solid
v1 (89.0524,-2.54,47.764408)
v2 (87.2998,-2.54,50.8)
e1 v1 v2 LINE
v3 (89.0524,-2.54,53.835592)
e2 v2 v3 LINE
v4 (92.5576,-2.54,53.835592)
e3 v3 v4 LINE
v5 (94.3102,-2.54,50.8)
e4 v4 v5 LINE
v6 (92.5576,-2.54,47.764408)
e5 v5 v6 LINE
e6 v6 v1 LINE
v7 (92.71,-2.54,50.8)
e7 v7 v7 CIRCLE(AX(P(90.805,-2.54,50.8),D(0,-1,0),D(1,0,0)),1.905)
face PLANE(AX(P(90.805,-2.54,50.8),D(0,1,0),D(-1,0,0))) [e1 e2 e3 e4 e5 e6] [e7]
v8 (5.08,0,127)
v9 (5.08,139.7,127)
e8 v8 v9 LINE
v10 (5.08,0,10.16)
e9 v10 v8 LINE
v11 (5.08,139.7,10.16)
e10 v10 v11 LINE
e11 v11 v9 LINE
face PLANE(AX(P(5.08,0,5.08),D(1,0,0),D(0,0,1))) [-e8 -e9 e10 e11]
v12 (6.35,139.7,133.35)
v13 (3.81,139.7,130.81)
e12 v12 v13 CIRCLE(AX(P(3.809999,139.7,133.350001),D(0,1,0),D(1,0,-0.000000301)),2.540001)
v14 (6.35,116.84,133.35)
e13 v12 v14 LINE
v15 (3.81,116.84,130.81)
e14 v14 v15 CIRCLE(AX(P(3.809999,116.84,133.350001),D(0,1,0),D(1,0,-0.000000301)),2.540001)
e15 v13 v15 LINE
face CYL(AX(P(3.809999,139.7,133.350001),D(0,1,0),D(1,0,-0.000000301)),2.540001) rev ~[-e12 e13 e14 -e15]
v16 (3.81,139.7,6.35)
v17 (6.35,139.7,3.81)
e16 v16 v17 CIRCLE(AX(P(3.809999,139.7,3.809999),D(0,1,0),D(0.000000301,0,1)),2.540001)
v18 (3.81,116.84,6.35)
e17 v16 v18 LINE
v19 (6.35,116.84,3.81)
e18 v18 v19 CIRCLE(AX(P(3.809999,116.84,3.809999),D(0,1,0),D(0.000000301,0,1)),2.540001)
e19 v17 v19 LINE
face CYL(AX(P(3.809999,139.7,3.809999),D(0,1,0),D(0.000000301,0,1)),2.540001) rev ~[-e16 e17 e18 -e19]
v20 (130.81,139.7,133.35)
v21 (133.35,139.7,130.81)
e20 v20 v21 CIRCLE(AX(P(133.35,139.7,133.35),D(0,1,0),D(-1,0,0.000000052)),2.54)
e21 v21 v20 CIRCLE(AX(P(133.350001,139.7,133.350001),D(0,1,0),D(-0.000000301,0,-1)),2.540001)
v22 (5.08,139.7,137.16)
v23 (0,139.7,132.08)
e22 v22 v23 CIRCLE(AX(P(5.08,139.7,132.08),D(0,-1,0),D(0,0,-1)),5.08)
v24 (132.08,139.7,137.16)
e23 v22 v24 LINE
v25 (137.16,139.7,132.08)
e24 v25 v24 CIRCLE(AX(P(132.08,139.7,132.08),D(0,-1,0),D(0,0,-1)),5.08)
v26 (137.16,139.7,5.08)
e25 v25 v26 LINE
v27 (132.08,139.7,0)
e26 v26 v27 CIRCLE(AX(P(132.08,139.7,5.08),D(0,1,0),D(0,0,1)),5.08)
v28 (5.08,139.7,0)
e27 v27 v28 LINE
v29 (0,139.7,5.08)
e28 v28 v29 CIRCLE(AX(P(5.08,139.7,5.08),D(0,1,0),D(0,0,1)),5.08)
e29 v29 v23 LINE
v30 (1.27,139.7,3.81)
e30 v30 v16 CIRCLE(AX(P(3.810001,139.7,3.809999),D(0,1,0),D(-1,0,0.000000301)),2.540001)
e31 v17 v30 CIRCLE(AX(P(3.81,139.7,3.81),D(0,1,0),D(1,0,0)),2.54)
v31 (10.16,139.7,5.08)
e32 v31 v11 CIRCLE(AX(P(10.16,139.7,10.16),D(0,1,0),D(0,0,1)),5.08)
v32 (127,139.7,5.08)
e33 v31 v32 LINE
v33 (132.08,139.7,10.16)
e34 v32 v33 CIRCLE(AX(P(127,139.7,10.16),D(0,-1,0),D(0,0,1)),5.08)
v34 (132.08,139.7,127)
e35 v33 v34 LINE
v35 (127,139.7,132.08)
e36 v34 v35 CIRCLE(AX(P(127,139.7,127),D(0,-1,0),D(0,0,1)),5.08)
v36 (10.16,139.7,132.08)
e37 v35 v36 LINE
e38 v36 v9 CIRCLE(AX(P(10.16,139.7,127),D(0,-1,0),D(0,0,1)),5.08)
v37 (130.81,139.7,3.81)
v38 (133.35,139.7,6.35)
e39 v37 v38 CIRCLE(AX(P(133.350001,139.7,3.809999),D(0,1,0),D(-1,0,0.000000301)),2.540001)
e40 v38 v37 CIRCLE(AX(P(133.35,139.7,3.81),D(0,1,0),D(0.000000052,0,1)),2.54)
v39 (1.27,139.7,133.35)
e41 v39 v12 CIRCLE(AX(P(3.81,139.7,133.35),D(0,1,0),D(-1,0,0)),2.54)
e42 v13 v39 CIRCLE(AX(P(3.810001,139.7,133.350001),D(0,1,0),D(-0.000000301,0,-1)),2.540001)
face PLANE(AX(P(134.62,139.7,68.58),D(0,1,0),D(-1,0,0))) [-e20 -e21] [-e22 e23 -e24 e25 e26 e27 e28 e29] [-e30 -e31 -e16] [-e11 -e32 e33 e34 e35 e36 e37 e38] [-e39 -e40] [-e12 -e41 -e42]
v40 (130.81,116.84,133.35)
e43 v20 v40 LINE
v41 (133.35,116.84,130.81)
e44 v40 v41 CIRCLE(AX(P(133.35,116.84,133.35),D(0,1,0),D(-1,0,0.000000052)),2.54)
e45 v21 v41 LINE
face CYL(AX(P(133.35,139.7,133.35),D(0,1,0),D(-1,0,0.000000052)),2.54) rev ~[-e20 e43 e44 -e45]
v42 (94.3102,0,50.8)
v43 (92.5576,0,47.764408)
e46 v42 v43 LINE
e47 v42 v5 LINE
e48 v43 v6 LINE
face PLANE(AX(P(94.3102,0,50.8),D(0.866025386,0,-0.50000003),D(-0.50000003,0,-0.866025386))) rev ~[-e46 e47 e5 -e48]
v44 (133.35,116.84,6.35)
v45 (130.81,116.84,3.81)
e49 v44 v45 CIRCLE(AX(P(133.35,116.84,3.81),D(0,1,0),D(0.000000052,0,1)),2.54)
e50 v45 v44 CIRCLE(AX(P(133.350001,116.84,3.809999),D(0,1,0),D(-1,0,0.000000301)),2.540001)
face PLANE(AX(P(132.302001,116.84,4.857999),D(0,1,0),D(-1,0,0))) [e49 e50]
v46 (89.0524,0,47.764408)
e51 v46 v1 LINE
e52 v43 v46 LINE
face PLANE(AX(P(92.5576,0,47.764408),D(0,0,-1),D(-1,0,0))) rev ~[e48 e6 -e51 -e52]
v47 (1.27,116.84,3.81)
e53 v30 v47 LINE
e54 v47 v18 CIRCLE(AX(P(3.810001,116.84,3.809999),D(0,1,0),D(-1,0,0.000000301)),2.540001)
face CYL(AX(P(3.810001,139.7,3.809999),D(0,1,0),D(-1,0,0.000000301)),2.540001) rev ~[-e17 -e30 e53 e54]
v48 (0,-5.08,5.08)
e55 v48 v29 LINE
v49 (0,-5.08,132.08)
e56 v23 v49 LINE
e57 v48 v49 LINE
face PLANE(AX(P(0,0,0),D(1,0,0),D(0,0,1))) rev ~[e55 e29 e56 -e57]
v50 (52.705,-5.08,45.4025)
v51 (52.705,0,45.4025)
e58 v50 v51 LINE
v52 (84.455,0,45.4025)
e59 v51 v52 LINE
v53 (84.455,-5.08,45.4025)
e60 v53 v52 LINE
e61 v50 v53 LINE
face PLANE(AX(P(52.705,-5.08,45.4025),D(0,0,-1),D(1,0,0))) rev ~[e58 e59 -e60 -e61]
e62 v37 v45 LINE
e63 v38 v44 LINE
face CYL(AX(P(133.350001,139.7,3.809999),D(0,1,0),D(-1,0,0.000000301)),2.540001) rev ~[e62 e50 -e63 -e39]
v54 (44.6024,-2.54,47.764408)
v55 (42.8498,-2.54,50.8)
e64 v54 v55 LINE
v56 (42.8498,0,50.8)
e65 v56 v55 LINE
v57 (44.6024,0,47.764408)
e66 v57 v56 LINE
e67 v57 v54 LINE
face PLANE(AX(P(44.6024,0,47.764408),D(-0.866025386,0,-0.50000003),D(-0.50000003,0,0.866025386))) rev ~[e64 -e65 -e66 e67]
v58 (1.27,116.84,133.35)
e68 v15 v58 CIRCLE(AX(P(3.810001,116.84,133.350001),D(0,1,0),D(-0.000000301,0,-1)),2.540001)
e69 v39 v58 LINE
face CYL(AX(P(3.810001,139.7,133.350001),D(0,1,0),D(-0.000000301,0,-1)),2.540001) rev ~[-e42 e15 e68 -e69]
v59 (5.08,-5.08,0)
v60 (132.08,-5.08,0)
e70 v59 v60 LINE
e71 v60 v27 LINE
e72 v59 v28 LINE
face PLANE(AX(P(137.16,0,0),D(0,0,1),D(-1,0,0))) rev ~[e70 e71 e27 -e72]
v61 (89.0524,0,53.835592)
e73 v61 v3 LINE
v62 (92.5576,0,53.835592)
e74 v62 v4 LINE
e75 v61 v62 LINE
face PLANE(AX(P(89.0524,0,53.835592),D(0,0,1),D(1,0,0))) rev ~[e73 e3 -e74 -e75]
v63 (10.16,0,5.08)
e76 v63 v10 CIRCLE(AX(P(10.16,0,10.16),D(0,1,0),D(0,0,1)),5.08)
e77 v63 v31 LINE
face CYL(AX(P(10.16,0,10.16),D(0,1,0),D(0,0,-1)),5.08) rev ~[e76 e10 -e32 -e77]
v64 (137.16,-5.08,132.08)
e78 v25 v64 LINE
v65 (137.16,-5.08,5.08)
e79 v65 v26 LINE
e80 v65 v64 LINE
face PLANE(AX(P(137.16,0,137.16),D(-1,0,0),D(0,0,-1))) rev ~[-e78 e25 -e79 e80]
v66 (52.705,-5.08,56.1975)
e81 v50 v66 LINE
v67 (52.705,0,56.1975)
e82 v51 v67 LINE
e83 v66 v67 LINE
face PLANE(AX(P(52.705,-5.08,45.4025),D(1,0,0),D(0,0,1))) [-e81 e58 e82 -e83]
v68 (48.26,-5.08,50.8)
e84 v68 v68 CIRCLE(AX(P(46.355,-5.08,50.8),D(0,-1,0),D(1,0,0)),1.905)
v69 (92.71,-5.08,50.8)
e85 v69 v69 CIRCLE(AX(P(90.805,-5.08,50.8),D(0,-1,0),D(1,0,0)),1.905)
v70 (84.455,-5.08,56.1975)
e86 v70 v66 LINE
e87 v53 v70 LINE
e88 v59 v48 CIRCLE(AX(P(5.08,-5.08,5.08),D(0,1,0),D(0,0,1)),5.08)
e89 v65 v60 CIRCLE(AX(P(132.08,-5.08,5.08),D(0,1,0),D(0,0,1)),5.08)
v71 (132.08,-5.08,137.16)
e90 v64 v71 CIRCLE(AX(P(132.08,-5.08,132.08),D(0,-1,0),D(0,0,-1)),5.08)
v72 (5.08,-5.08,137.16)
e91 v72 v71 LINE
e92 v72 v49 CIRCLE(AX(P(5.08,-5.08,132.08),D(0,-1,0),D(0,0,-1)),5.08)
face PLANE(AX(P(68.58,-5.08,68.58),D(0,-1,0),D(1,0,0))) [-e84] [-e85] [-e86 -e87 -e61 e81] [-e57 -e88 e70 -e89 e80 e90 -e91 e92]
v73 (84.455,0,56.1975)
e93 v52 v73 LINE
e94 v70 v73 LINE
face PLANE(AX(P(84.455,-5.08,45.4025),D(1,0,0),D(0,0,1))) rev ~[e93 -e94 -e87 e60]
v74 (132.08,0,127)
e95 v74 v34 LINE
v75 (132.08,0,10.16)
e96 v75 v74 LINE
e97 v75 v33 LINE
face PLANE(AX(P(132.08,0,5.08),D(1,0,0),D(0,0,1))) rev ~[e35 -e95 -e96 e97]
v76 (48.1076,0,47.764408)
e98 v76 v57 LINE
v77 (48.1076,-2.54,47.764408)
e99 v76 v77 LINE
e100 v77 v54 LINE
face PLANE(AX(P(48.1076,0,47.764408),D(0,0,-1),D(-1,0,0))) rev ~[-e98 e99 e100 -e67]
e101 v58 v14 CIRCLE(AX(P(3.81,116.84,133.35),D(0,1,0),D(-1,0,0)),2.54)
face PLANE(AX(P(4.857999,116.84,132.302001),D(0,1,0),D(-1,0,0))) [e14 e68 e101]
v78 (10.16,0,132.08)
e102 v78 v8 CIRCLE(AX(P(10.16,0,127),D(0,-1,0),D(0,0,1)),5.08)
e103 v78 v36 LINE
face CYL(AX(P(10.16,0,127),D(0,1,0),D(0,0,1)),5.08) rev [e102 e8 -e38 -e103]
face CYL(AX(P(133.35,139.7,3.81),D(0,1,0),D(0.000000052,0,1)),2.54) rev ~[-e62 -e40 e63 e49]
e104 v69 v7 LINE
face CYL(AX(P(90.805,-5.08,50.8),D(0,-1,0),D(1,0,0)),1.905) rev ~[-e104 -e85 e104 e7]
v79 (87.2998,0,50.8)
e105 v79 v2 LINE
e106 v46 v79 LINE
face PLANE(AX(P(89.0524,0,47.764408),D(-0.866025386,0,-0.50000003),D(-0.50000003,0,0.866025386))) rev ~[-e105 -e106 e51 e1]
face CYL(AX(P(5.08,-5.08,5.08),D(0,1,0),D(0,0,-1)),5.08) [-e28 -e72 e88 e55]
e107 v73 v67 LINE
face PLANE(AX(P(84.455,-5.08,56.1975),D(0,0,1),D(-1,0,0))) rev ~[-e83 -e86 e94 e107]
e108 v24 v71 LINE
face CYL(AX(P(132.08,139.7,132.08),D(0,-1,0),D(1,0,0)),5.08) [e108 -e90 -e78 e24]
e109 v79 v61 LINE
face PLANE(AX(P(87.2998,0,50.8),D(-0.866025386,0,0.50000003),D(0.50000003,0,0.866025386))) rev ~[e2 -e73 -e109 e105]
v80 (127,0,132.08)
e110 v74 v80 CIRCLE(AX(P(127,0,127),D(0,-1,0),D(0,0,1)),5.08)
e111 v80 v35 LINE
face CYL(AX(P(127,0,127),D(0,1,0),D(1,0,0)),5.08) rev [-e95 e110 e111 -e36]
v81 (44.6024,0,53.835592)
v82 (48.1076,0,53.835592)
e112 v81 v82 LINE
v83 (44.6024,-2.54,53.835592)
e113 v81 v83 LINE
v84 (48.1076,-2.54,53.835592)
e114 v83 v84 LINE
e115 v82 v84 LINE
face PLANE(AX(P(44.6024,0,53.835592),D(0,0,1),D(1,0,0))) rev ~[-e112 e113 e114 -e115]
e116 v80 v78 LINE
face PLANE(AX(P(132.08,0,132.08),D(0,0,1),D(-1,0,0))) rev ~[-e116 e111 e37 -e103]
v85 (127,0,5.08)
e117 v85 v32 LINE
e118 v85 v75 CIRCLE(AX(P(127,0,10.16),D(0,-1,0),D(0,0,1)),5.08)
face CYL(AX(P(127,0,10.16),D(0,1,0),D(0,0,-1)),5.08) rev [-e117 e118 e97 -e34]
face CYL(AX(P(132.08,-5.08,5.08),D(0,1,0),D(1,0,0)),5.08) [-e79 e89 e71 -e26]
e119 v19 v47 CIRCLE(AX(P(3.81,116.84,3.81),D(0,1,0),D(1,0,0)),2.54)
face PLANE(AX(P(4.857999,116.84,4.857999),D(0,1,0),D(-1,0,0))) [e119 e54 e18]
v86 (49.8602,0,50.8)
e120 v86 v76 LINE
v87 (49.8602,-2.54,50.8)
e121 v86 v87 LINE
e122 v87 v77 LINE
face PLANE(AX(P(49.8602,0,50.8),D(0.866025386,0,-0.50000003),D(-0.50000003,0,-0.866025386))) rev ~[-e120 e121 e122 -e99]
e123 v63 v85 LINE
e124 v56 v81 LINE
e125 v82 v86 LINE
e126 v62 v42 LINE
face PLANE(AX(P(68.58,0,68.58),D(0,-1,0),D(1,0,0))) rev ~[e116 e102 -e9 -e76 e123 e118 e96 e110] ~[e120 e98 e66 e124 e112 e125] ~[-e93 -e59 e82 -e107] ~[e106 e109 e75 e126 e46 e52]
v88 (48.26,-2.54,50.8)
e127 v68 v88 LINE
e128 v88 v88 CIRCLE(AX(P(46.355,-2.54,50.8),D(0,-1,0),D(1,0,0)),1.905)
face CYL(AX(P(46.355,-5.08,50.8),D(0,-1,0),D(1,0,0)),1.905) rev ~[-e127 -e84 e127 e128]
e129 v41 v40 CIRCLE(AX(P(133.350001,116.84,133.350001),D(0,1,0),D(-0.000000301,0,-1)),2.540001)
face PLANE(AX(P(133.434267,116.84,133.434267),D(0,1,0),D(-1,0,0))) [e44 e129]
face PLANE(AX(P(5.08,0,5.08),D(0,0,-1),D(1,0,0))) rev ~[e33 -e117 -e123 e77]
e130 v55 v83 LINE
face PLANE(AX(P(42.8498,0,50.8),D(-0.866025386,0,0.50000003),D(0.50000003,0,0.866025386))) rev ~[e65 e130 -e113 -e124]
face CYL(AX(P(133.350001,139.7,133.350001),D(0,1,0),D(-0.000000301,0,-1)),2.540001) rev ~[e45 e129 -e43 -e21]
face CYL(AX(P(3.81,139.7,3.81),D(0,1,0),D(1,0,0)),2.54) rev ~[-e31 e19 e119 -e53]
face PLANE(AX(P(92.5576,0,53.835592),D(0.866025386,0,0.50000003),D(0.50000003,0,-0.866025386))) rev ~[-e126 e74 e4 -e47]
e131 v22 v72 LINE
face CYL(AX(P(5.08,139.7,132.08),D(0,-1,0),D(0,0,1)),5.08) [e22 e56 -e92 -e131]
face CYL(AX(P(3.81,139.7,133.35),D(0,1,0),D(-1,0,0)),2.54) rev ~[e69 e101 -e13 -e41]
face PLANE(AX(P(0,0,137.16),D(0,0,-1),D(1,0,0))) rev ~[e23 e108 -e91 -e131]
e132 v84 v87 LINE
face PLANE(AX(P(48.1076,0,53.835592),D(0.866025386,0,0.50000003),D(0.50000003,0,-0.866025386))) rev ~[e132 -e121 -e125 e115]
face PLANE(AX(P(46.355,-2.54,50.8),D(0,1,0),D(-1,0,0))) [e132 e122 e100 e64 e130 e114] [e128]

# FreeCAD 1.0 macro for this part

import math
import FreeCAD as App
import Part
import Sketcher
Q = App.Units.Quantity


def edges_at(feature, points):
    """Names of the edges that pass closest to the given points."""
    edges = feature.Shape.Edges
    near = lambda p: min(range(len(edges)), key=lambda i: edges[i].distToShape(Part.Vertex(*p))[0])
    return sorted({f"Edge{near(p) + 1}" for p in points})


def add_polygon(sketch, points):
    """Adds a closed chain of lines whose ends are joined by coincident constraints."""
    first, n = sketch.GeometryCount, len(points)
    for a, b in zip(points, points[1:] + points[:1]):
        sketch.addGeometry(Part.LineSegment(App.Vector(*a, 0), App.Vector(*b, 0)), False)
    for i in range(n):
        sketch.addConstraint(Sketcher.Constraint("Coincident", first + i, 2, first + (i + 1) % n, 1))

doc = App.newDocument("Part")
params = doc.addObject("Spreadsheet::Sheet", "Params")
for row, (alias, value) in enumerate([
    ("sketch1_width", "5.4 in"),
    ("pad1_length", "0.2 in"),
    ("sketch2_width", "5 in"),
    ("sketch2_width2", "5.4 in"),
    ("pad2_length", "5.5 in"),
    ("sketch3_width", "1.25 in"),
    ("sketch3_height", "0.425 in"),
    ("sketch4_diameter", "0.15 in"),
    ("fillet_radius", "0.2 in"),
    ("sketch5_width", "0.138 in"),
    ("sketch5_length", "0.138 in"),
    ("pocket3_length", "0.1 in"),
    ("sketch6_radius", "0.1 in"),
    ("pocket4_length", "0.9 in"),
], start=1):
    params.set(f"A{row}", alias)
    params.set(f"B{row}", "=" + value)
    params.setAlias(f"B{row}", alias)

body = doc.addObject("PartDesign::Body", "Body")

# Sketch on XZ plane
sketch1 = body.newObject("Sketcher::SketchObject", "Sketch")
sketch1.AttachmentSupport = (doc.getObject("XZ_Plane"), [""])
sketch1.MapMode = "FlatFace"
add_polygon(sketch1, [(0, 137), (0, 0), (137, 0), (137, 137)])  # lines 0-3
sketch1.addConstraint([
    Sketcher.Constraint("Vertical", 0),
    Sketcher.Constraint("Horizontal", 1),
    Sketcher.Constraint("Vertical", 2),
    Sketcher.Constraint("Horizontal", 3),
    Sketcher.Constraint("Coincident", 0, 2, -1, 1),
    Sketcher.Constraint("Equal", 3, 0),
    Sketcher.Constraint("DistanceX", 1, 1, 1, 2, Q("5.4 in")),
])
sketch1.setExpression("Constraints[10]", "Params.sketch1_width")
pad1 = body.newObject("PartDesign::Pad", "Pad")
pad1.Profile = sketch1
pad1.setExpression("Length", "Params.pad1_length")

# Sketch on XZ plane
sketch2 = body.newObject("Sketcher::SketchObject", "Sketch001")
sketch2.AttachmentSupport = (doc.getObject("XZ_Plane"), [""])
sketch2.MapMode = "FlatFace"
add_polygon(sketch2, [(137, 137), (137, 0), (0, 0), (0, 137)])  # lines 0-3
add_polygon(sketch2, [(5, 5), (132, 5), (132, 132), (5, 132)])  # lines 4-7
sketch2.addConstraint([
    Sketcher.Constraint("Vertical", 0),
    Sketcher.Constraint("Horizontal", 1),
    Sketcher.Constraint("Vertical", 2),
    Sketcher.Constraint("Horizontal", 3),
    Sketcher.Constraint("Horizontal", 4),
    Sketcher.Constraint("Vertical", 5),
    Sketcher.Constraint("Horizontal", 6),
    Sketcher.Constraint("Vertical", 7),
    Sketcher.Constraint("Coincident", 1, 2, -1, 1),
    Sketcher.Constraint("Equal", 3, 0),
    Sketcher.Constraint("Equal", 6, 5),
    Sketcher.Constraint("DistanceX", 4, 1, 4, 2, Q("5 in")),
    Sketcher.Constraint("DistanceX", 1, 2, 1, 1, Q("5.4 in")),
    Sketcher.Constraint("DistanceX", -1, 1, 4, 2, Q("5.2 in")),
    Sketcher.Constraint("DistanceY", -1, 1, 4, 2, Q("0.2 in")),
])
sketch2.setExpression("Constraints[19]", "Params.sketch2_width")
sketch2.setExpression("Constraints[20]", "Params.sketch2_width2")
pad2 = body.newObject("PartDesign::Pad", "Pad001")
pad2.Profile = sketch2
pad2.setExpression("Length", "Params.pad2_length")
pad2.Reversed = True

# Sketch on XZ plane
sketch3 = body.newObject("Sketcher::SketchObject", "Sketch002")
sketch3.AttachmentSupport = (doc.getObject("XZ_Plane"), [""])
sketch3.MapMode = "FlatFace"
sketch3.AttachmentOffset = App.Placement(App.Vector(0, 0, 0.2 * 25.4), App.Rotation())
add_polygon(sketch3, [(84, 45), (84, 56), (53, 56), (53, 45)])  # lines 0-3
sketch3.addConstraint([
    Sketcher.Constraint("Vertical", 0),
    Sketcher.Constraint("Horizontal", 1),
    Sketcher.Constraint("Vertical", 2),
    Sketcher.Constraint("Horizontal", 3),
    Sketcher.Constraint("DistanceX", 1, 2, 1, 1, Q("1.25 in")),
    Sketcher.Constraint("DistanceY", 0, 1, 0, 2, Q("0.425 in")),
    Sketcher.Constraint("DistanceX", -1, 1, 0, 2, Q("3.325 in")),
    Sketcher.Constraint("DistanceY", -1, 1, 0, 2, Q("2.2125 in")),
])
sketch3.setExpression("Constraints[8]", "Params.sketch3_width")
sketch3.setExpression("Constraints[9]", "Params.sketch3_height")
pocket1 = body.newObject("PartDesign::Pocket", "Pocket")
pocket1.Profile = sketch3
pocket1.Type = "ThroughAll"

# Sketch on XZ plane
sketch4 = body.newObject("Sketcher::SketchObject", "Sketch003")
sketch4.AttachmentSupport = (doc.getObject("XZ_Plane"), [""])
sketch4.MapMode = "FlatFace"
sketch4.AttachmentOffset = App.Placement(App.Vector(0, 0, 0.2 * 25.4), App.Rotation())
sketch4.addGeometry([
    Part.Circle(App.Vector(90.8, 50.8, 0), App.Vector(0, 0, 1), 1.9),
    Part.Circle(App.Vector(46.4, 50.8, 0), App.Vector(0, 0, 1), 1.9),
], False)
sketch4.addConstraint([
    Sketcher.Constraint("Equal", 0, 1),
    Sketcher.Constraint("Horizontal", 0, 3, 1, 3),
    Sketcher.Constraint("Diameter", 0, Q("0.15 in")),
    Sketcher.Constraint("DistanceY", -1, 1, 0, 3, Q("2 in")),
    Sketcher.Constraint("DistanceX", 1, 3, 0, 3, Q("1.75 in")),
    Sketcher.Constraint("DistanceX", -1, 1, 0, 3, Q("3.575 in")),
])
sketch4.setExpression("Constraints[2]", "Params.sketch4_diameter")
pocket2 = body.newObject("PartDesign::Pocket", "Pocket001")
pocket2.Profile = sketch4
pocket2.Type = "ThroughAll"
doc.recompute()

fillet = body.newObject("PartDesign::Fillet", "Fillet")
fillet.Base = (pocket2, edges_at(pocket2, [
    (0, 67.31, 137.16),
    (137.16, 67.31, 137.16),
    (0, 67.31, 0),
    (137.16, 67.31, 0),
    (5.08, 69.85, 132.08),
    (132.08, 69.85, 132.08),
    (5.08, 69.85, 5.08),
    (132.08, 69.85, 5.08),
]))
fillet.setExpression("Radius", "Params.fillet_radius")

# Sketch on XZ plane
sketch5 = body.newObject("Sketcher::SketchObject", "Sketch004")
sketch5.AttachmentSupport = (doc.getObject("XZ_Plane"), [""])
sketch5.MapMode = "FlatFace"
add_polygon(sketch5, [(89.1, 53.8), (92.6, 53.8), (94.3, 50.8), (92.6, 47.8), (89.1, 47.8), (87.3, 50.8)])  # lines 0-5
add_polygon(sketch5, [(42.8, 50.8), (44.6, 53.8), (48.1, 53.8), (49.9, 50.8), (48.1, 47.8), (44.6, 47.8)])  # lines 6-11
sketch5.addConstraint([
    Sketcher.Constraint("Horizontal", 0),
    Sketcher.Constraint("Horizontal", 3),
    Sketcher.Constraint("Horizontal", 7),
    Sketcher.Constraint("Horizontal", 10),
    Sketcher.Constraint("Parallel", 1, 4),
    Sketcher.Constraint("Parallel", 2, 5),
    Sketcher.Constraint("Parallel", 5, 6),
    Sketcher.Constraint("Parallel", 4, 8),
    Sketcher.Constraint("Parallel", 6, 9),
    Sketcher.Constraint("Parallel", 8, 11),
    Sketcher.Constraint("Horizontal", 1, 2, 4, 2),
    Sketcher.Constraint("Horizontal", 5, 2, 6, 2),
    Sketcher.Constraint("Horizontal", 4, 2, 8, 2),
    Sketcher.Constraint("Horizontal", 3, 2, 9, 2),
    Sketcher.Constraint("Horizontal", 8, 2, 11, 2),
    Sketcher.Constraint("Vertical", 0, 2, 2, 2),
    Sketcher.Constraint("Vertical", 3, 2, 5, 2),
    Sketcher.Constraint("Equal", 3, 7),
    Sketcher.Constraint("DistanceY", -1, 1, 1, 2, Q("2 in")),
    Sketcher.Constraint("Angle", 1, Q("-59.999998 deg")),
    Sketcher.Constraint("DistanceX", 0, 1, 0, 2, Q("0.138 in")),
    Sketcher.Constraint("DistanceX", 6, 2, 5, 2, Q("1.75 in")),
    Sketcher.Constraint("Distance", 1, Q("0.138 in")),
    Sketcher.Constraint("DistanceX", -1, 1, 0, 2, Q("3.644 in")),
])
sketch5.setExpression("Constraints[32]", "Params.sketch5_width")
sketch5.setExpression("Constraints[34]", "Params.sketch5_length")
pocket3 = body.newObject("PartDesign::Pocket", "Pocket002")
pocket3.Profile = sketch5
pocket3.setExpression("Length", "Params.pocket3_length")
pocket3.Reversed = True

# Sketch on XZ plane
sketch6 = body.newObject("Sketcher::SketchObject", "Sketch005")
sketch6.AttachmentSupport = (doc.getObject("XZ_Plane"), [""])
sketch6.MapMode = "FlatFace"
sketch6.AttachmentOffset = App.Placement(App.Vector(0, 0, -5.5 * 25.4), App.Rotation())
sketch6.addGeometry([
    Part.ArcOfCircle(Part.Circle(App.Vector(133.3, 133.3, 0), App.Vector(0, 0, 1), 2.5), math.radians(-90), math.radians(180)),  # 0
    Part.ArcOfCircle(Part.Circle(App.Vector(133.4, 133.4, 0), App.Vector(0, 0, 1), 2.5), math.radians(-180), math.radians(-90)),  # 1
    Part.ArcOfCircle(Part.Circle(App.Vector(133.4, 3.8, 0), App.Vector(0, 0, 1), 2.5), math.radians(90), math.radians(180)),  # 2
    Part.ArcOfCircle(Part.Circle(App.Vector(133.3, 3.8, 0), App.Vector(0, 0, 1), 2.5), math.radians(-180), math.radians(90)),  # 3
    Part.ArcOfCircle(Part.Circle(App.Vector(3.8, 3.8, 0), App.Vector(0, 0, 1), 2.5), math.radians(0), math.radians(90)),  # 4
    Part.ArcOfCircle(Part.Circle(App.Vector(3.8, 3.8, 0), App.Vector(0, 0, 1), 2.5), math.radians(180), math.radians(360)),  # 5
    Part.ArcOfCircle(Part.Circle(App.Vector(3.8, 3.8, 0), App.Vector(0, 0, 1), 2.5), math.radians(90), math.radians(180)),  # 6
    Part.ArcOfCircle(Part.Circle(App.Vector(3.8, 133.4, 0), App.Vector(0, 0, 1), 2.5), math.radians(-90), math.radians(0)),  # 7
    Part.ArcOfCircle(Part.Circle(App.Vector(3.8, 133.4, 0), App.Vector(0, 0, 1), 2.5), math.radians(-180), math.radians(-90)),  # 8
    Part.ArcOfCircle(Part.Circle(App.Vector(3.8, 133.3, 0), App.Vector(0, 0, 1), 2.5), math.radians(0), math.radians(180)),  # 9
], False)
sketch6.addConstraint([
    Sketcher.Constraint("Tangent", 0, 1, 1, 2),
    Sketcher.Constraint("Coincident", 1, 1, 0, 2),
    Sketcher.Constraint("Tangent", 2, 1, 3, 2),
    Sketcher.Constraint("Coincident", 3, 1, 2, 2),
    Sketcher.Constraint("Tangent", 4, 1, 5, 2),
    Sketcher.Constraint("Tangent", 5, 1, 6, 2),
    Sketcher.Constraint("Tangent", 6, 1, 4, 2),
    Sketcher.Constraint("Tangent", 7, 1, 8, 2),
    Sketcher.Constraint("Tangent", 8, 1, 9, 2),
    Sketcher.Constraint("Tangent", 9, 1, 7, 2),
    Sketcher.Constraint("Equal", 1, 2),
    Sketcher.Constraint("Equal", 3, 4),
    Sketcher.Constraint("Equal", 6, 7),
    Sketcher.Constraint("Horizontal", 3, 3, 4, 3),
    Sketcher.Constraint("Horizontal", 1, 3, 7, 3),
    Sketcher.Constraint("Horizontal", 9, 3, 1, 1),
    Sketcher.Constraint("Horizontal", 6, 3, 3, 1),
    Sketcher.Constraint("Horizontal", 3, 1, 4, 1),
    Sketcher.Constraint("Horizontal", 4, 1, 5, 1),
    Sketcher.Constraint("Horizontal", 1, 1, 8, 1),
    Sketcher.Constraint("Horizontal", 8, 1, 9, 1),
    Sketcher.Constraint("Vertical", 1, 3, 2, 3),
    Sketcher.Constraint("Vertical", 6, 3, 7, 3),
    Sketcher.Constraint("Vertical", 3, 3, 0, 1),
    Sketcher.Constraint("Vertical", 0, 1, 2, 1),
    Sketcher.Constraint("Vertical", 9, 3, 6, 1),
    Sketcher.Constraint("Vertical", 6, 1, 7, 1),
    Sketcher.Constraint("Radius", 0, Q("0.1 in")),
    Sketcher.Constraint("DistanceY", 3, 3, 0, 1, Q("5 in")),
    Sketcher.Constraint("DistanceX", 8, 3, 1, 1, Q("5 in")),
    Sketcher.Constraint("DistanceX", -1, 1, 0, 3, Q("5.25 in")),
    Sketcher.Constraint("DistanceY", -1, 1, 0, 3, Q("5.25 in")),
])
sketch6.setExpression("Constraints[27]", "Params.sketch6_radius")
pocket4 = body.newObject("PartDesign::Pocket", "Pocket003")
pocket4.Profile = sketch6
pocket4.setExpression("Length", "Params.pocket4_length")
pocket4.Reversed = True

doc.recompute()
